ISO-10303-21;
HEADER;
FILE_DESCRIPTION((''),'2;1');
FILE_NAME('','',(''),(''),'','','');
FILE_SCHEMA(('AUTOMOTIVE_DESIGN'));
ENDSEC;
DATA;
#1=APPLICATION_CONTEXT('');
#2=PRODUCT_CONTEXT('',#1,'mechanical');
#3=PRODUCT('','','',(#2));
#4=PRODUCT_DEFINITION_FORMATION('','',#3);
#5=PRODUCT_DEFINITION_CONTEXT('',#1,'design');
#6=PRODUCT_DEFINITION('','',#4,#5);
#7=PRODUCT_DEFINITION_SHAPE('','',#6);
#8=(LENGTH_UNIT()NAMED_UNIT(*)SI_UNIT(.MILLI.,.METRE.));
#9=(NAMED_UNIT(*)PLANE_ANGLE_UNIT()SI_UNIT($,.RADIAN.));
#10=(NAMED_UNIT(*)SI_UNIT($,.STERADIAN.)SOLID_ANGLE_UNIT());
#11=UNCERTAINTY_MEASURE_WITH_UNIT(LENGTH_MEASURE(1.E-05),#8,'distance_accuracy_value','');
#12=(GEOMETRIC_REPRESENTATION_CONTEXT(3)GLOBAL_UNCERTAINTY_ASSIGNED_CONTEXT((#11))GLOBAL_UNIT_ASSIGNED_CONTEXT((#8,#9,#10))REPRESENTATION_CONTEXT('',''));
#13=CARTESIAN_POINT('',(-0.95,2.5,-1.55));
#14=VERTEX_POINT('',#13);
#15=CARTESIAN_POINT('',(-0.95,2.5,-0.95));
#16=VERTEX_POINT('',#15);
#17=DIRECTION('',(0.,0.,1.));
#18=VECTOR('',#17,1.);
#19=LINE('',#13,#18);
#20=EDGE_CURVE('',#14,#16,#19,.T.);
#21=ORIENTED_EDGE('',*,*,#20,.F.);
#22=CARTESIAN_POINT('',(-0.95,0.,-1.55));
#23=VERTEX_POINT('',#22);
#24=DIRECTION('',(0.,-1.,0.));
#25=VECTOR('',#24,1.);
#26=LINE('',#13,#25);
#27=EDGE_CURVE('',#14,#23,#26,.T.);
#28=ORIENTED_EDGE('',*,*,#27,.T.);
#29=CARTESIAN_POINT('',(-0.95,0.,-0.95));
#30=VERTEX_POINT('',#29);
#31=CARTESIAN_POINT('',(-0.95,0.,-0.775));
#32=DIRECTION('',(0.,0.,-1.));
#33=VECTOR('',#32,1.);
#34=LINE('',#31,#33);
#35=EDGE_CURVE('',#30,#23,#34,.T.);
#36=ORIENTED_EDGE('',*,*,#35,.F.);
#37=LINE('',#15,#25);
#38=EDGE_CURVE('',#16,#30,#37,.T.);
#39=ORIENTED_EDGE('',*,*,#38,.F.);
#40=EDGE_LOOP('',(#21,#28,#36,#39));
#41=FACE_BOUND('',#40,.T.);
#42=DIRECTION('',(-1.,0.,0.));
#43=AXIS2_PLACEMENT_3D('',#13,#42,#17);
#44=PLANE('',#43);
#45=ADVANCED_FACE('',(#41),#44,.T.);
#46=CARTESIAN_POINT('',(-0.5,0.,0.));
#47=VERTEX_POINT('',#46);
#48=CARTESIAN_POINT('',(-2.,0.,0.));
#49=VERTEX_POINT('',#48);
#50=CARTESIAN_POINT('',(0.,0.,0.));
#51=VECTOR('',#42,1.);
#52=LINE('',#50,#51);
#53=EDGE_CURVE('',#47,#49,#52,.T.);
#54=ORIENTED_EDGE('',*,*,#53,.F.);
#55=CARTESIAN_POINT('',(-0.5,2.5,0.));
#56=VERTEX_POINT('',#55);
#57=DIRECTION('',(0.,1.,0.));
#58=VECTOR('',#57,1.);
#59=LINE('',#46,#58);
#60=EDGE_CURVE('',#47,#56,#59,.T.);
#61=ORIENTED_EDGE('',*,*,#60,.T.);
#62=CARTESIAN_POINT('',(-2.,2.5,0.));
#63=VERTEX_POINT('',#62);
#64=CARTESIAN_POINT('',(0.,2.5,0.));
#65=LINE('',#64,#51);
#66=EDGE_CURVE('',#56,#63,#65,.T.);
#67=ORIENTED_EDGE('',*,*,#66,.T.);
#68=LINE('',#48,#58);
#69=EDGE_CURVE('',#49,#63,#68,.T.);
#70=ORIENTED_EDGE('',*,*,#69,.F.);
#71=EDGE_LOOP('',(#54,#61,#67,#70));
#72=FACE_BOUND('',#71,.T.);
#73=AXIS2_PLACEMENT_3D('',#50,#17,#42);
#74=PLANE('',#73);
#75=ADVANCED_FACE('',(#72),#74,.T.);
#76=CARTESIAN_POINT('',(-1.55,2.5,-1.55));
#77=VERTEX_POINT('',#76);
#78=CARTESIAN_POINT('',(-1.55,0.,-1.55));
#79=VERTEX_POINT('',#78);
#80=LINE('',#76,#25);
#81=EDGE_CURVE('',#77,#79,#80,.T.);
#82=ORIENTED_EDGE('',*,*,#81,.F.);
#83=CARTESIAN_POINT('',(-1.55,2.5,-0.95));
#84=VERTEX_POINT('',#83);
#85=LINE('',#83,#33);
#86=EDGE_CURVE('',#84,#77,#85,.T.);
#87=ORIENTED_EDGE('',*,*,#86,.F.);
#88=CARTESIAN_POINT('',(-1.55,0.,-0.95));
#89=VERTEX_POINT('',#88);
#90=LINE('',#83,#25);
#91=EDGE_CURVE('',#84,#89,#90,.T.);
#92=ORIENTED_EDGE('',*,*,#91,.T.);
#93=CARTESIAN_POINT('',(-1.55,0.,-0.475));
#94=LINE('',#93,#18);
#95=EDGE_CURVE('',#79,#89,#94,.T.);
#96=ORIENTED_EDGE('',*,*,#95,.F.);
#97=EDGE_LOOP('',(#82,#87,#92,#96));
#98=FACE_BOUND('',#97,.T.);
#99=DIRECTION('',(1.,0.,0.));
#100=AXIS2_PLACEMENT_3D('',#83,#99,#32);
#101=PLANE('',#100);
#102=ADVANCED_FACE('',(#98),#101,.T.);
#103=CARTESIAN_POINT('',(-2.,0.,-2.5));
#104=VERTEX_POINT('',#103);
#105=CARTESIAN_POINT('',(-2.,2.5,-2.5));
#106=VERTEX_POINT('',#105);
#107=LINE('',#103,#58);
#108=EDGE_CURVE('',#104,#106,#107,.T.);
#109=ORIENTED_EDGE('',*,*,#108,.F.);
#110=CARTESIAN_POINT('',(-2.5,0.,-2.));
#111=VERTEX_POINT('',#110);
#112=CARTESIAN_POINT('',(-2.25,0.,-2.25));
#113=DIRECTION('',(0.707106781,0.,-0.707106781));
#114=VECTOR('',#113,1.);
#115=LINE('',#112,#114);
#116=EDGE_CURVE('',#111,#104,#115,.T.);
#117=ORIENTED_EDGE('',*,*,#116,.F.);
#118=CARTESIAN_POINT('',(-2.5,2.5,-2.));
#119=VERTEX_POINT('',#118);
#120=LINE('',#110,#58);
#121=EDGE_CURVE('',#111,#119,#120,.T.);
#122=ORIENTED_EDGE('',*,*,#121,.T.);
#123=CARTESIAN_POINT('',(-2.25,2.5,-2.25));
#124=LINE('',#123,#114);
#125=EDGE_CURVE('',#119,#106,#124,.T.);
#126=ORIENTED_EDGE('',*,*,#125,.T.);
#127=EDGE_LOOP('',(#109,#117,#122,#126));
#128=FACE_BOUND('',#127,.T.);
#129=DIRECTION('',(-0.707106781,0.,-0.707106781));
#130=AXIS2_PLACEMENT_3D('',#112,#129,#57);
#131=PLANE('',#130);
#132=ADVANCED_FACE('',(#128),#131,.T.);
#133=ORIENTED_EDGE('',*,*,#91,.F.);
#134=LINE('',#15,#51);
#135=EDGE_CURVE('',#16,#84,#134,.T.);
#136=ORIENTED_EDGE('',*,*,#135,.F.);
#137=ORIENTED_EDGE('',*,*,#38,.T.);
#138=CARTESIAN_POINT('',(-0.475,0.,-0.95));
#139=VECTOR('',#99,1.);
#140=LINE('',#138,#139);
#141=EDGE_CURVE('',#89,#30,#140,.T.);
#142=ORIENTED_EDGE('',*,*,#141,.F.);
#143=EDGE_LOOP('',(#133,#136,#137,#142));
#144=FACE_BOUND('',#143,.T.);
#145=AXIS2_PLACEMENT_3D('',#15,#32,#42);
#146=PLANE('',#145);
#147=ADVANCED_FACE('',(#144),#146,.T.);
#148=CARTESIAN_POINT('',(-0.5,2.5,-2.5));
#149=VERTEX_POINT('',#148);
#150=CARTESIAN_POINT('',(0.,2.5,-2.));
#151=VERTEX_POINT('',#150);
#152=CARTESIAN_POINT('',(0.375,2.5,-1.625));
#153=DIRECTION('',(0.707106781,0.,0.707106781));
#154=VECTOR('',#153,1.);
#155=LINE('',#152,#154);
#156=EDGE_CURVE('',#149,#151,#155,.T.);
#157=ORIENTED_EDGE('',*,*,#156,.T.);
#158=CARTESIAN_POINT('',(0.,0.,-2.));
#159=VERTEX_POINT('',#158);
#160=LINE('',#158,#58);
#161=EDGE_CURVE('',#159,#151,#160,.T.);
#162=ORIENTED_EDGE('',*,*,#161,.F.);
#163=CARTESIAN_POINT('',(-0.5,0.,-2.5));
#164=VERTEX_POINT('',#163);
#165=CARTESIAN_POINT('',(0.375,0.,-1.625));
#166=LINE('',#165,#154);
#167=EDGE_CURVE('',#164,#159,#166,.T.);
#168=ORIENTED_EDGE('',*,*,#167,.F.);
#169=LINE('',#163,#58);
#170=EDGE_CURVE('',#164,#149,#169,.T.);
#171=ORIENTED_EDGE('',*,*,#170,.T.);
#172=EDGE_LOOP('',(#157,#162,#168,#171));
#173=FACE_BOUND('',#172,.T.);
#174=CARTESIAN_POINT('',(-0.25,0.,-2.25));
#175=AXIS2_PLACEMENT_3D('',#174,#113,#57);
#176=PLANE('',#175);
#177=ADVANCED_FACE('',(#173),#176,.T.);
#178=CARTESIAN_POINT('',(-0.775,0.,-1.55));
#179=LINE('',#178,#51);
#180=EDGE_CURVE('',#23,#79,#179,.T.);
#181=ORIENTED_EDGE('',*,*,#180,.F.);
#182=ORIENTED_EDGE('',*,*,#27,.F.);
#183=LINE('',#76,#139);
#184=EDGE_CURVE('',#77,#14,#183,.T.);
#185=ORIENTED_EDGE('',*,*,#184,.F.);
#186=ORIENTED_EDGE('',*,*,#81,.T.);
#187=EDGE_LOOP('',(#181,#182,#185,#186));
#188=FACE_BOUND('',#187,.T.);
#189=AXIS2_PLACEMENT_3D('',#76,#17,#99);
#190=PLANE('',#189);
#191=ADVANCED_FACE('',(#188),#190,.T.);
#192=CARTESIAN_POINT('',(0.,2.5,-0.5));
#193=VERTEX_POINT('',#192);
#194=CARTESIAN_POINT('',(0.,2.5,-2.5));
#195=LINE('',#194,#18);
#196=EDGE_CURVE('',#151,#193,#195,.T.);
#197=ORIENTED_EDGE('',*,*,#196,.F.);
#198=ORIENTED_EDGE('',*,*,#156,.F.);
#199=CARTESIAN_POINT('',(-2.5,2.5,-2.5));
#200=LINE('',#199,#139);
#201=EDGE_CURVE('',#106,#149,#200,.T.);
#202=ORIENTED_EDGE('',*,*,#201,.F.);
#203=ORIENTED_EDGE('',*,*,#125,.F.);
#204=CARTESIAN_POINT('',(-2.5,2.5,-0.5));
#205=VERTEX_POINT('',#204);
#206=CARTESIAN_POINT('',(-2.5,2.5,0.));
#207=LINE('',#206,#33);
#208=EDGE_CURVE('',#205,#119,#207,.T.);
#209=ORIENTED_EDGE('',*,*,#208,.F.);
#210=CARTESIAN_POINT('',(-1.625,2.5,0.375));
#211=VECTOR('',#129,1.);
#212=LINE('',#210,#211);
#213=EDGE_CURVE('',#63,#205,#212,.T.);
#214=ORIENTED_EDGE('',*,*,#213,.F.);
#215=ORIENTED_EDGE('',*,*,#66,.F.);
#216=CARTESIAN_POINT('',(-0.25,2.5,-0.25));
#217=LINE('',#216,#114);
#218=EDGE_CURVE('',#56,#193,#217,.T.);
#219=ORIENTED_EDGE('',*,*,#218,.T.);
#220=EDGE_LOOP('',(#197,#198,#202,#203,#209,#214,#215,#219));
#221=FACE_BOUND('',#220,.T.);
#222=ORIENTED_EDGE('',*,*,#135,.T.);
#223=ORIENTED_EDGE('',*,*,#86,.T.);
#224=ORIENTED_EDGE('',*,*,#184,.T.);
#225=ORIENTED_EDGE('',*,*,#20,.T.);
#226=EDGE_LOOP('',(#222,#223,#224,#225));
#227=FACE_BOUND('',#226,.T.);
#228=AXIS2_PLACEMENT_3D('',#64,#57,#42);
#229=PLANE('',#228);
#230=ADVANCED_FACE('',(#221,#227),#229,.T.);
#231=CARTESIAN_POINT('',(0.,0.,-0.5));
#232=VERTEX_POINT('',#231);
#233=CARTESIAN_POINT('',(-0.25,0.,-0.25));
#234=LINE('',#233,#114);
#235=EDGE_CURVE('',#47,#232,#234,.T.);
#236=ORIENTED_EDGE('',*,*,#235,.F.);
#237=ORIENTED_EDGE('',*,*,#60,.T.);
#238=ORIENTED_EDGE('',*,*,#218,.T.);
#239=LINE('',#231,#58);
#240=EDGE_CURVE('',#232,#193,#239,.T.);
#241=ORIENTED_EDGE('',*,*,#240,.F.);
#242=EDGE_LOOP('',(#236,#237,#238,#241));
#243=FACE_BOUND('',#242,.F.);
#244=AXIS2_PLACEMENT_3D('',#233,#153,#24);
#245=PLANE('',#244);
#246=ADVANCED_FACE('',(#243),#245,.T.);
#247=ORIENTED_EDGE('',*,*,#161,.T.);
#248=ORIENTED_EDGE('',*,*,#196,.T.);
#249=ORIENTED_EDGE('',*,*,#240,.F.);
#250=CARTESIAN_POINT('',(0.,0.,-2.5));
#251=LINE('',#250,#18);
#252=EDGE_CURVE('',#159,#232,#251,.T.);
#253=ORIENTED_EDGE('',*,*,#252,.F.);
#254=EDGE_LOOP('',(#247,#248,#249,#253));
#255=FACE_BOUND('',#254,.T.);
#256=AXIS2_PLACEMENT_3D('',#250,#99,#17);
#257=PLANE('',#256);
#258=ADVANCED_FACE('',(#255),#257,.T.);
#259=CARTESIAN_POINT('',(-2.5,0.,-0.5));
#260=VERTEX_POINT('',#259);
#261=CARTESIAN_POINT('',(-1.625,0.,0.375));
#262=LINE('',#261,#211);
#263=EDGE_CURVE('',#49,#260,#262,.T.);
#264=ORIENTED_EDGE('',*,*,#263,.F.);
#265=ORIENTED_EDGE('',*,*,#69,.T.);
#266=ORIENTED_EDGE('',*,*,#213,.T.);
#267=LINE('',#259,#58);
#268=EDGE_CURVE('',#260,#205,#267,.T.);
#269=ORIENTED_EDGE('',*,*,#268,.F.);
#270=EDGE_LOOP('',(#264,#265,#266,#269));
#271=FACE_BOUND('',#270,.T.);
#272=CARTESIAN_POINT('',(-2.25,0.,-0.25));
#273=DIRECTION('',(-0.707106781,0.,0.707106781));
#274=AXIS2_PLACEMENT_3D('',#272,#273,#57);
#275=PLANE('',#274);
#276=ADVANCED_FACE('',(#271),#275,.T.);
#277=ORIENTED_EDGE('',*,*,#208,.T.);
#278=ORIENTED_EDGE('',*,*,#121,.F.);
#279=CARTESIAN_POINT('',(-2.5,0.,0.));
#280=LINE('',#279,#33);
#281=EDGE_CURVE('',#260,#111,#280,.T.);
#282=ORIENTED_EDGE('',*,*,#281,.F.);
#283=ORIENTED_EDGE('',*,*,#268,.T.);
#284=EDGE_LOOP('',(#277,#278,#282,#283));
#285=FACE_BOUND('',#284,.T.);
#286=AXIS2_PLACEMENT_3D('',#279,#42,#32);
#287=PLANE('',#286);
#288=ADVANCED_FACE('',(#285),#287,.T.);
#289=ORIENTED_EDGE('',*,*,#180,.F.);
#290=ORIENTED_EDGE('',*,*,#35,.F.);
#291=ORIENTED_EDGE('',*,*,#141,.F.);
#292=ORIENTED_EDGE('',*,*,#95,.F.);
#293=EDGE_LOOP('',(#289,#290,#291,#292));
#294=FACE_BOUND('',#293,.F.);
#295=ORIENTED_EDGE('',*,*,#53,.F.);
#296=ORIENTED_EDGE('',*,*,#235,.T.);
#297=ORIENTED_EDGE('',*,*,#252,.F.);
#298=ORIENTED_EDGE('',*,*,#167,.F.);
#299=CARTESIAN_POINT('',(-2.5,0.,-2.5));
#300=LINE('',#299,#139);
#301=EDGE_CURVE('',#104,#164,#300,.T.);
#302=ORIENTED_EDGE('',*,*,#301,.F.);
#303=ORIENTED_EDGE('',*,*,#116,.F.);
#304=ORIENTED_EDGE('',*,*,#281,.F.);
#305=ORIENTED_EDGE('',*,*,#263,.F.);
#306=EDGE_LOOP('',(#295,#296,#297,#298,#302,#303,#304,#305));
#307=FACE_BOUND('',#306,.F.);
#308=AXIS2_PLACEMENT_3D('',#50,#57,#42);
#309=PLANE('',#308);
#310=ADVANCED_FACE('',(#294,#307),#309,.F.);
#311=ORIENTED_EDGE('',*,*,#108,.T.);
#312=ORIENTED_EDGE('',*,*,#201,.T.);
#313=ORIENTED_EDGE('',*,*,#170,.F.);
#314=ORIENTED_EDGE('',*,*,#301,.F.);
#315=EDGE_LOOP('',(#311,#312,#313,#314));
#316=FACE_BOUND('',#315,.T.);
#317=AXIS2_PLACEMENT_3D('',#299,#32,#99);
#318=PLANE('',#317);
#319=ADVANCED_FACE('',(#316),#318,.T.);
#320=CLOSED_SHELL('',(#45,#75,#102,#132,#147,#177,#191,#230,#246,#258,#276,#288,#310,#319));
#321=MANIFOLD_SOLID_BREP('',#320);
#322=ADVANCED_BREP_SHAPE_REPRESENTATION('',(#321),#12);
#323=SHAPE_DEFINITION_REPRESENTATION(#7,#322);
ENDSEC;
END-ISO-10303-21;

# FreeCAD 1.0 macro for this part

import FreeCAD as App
import Part
import Sketcher
Q = App.Units.Quantity


def edges_at(feature, points):
    """Names of the edges that pass closest to the given points."""
    edges = feature.Shape.Edges
    near = lambda p: min(range(len(edges)), key=lambda i: edges[i].distToShape(Part.Vertex(*p))[0])
    return sorted({f"Edge{near(p) + 1}" for p in points})

doc = App.newDocument("Part")
body = doc.addObject("PartDesign::Body", "Body")

# Sketch on XZ plane
sketch1 = body.newObject("Sketcher::SketchObject", "Sketch")
sketch1.AttachmentSupport = (doc.getObject("XZ_Plane"), [""])
sketch1.MapMode = "FlatFace"
sketch1.addGeometry(Part.LineSegment(App.Vector(-2.5, 0, 0), App.Vector(0, 0, 0)), False)
sketch1.addGeometry(Part.LineSegment(App.Vector(0, 0, 0), App.Vector(0, -2.5, 0)), False)
sketch1.addGeometry(Part.LineSegment(App.Vector(0, -2.5, 0), App.Vector(-2.5, -2.5, 0)), False)
sketch1.addGeometry(Part.LineSegment(App.Vector(-2.5, -2.5, 0), App.Vector(-2.5, 0, 0)), False)
sketch1.addConstraint(Sketcher.Constraint("Coincident", 0, 2, 1, 1))
sketch1.addConstraint(Sketcher.Constraint("Coincident", 1, 2, 2, 1))
sketch1.addConstraint(Sketcher.Constraint("Coincident", 2, 2, 3, 1))
sketch1.addConstraint(Sketcher.Constraint("Coincident", 3, 2, 0, 1))
sketch1.addConstraint(Sketcher.Constraint("Horizontal", 0))
sketch1.addConstraint(Sketcher.Constraint("Vertical", 1))
sketch1.addConstraint(Sketcher.Constraint("Horizontal", 2))
sketch1.addConstraint(Sketcher.Constraint("Vertical", 3))
sketch1.addConstraint(Sketcher.Constraint("Coincident", 0, 2, -1, 1))
sketch1.addConstraint(Sketcher.Constraint("Equal", 2, 1))
sketch1.addConstraint(Sketcher.Constraint("DistanceX", 0, 1, 0, 2, Q("2.5 mm")))
pad1 = body.newObject("PartDesign::Pad", "Pad")
pad1.Profile = sketch1
pad1.Length = 2.5
pad1.Reversed = True
doc.recompute()

chamfer = body.newObject("PartDesign::Chamfer", "Chamfer")
chamfer.Base = (pad1, edges_at(pad1, [
    (0, 1.25, 0),
    (-2.5, 1.25, 0),
    (0, 1.25, -2.5),
    (-2.5, 1.25, -2.5),
]))
chamfer.Size = 0.5

# Sketch on XZ plane
sketch2 = body.newObject("Sketcher::SketchObject", "Sketch001")
sketch2.AttachmentSupport = (doc.getObject("XZ_Plane"), [""])
sketch2.MapMode = "FlatFace"
sketch2.AttachmentOffset = App.Placement(App.Vector(0, 0, -2.5), App.Rotation())
sketch2.addGeometry(Part.LineSegment(App.Vector(-1.55, -0.95, 0), App.Vector(-0.95, -0.95, 0)), False)
sketch2.addGeometry(Part.LineSegment(App.Vector(-0.95, -0.95, 0), App.Vector(-0.95, -1.55, 0)), False)
sketch2.addGeometry(Part.LineSegment(App.Vector(-0.95, -1.55, 0), App.Vector(-1.55, -1.55, 0)), False)
sketch2.addGeometry(Part.LineSegment(App.Vector(-1.55, -1.55, 0), App.Vector(-1.55, -0.95, 0)), False)
sketch2.addConstraint(Sketcher.Constraint("Coincident", 0, 2, 1, 1))
sketch2.addConstraint(Sketcher.Constraint("Coincident", 1, 2, 2, 1))
sketch2.addConstraint(Sketcher.Constraint("Coincident", 2, 2, 3, 1))
sketch2.addConstraint(Sketcher.Constraint("Coincident", 3, 2, 0, 1))
sketch2.addConstraint(Sketcher.Constraint("Horizontal", 0))
sketch2.addConstraint(Sketcher.Constraint("Vertical", 1))
sketch2.addConstraint(Sketcher.Constraint("Horizontal", 2))
sketch2.addConstraint(Sketcher.Constraint("Vertical", 3))
sketch2.addConstraint(Sketcher.Constraint("Equal", 2, 1))
sketch2.addConstraint(Sketcher.Constraint("DistanceX", 0, 1, 0, 2, Q("0.6 mm")))
sketch2.addConstraint(Sketcher.Constraint("DistanceX", 0, 2, -1, 1, Q("0.95 mm")))
sketch2.addConstraint(Sketcher.Constraint("DistanceY", 0, 2, -1, 1, Q("0.95 mm")))
pocket1 = body.newObject("PartDesign::Pocket", "Pocket")
pocket1.Profile = sketch2
pocket1.Type = "UpToFirst"
pocket1.Reversed = True

doc.recompute()
